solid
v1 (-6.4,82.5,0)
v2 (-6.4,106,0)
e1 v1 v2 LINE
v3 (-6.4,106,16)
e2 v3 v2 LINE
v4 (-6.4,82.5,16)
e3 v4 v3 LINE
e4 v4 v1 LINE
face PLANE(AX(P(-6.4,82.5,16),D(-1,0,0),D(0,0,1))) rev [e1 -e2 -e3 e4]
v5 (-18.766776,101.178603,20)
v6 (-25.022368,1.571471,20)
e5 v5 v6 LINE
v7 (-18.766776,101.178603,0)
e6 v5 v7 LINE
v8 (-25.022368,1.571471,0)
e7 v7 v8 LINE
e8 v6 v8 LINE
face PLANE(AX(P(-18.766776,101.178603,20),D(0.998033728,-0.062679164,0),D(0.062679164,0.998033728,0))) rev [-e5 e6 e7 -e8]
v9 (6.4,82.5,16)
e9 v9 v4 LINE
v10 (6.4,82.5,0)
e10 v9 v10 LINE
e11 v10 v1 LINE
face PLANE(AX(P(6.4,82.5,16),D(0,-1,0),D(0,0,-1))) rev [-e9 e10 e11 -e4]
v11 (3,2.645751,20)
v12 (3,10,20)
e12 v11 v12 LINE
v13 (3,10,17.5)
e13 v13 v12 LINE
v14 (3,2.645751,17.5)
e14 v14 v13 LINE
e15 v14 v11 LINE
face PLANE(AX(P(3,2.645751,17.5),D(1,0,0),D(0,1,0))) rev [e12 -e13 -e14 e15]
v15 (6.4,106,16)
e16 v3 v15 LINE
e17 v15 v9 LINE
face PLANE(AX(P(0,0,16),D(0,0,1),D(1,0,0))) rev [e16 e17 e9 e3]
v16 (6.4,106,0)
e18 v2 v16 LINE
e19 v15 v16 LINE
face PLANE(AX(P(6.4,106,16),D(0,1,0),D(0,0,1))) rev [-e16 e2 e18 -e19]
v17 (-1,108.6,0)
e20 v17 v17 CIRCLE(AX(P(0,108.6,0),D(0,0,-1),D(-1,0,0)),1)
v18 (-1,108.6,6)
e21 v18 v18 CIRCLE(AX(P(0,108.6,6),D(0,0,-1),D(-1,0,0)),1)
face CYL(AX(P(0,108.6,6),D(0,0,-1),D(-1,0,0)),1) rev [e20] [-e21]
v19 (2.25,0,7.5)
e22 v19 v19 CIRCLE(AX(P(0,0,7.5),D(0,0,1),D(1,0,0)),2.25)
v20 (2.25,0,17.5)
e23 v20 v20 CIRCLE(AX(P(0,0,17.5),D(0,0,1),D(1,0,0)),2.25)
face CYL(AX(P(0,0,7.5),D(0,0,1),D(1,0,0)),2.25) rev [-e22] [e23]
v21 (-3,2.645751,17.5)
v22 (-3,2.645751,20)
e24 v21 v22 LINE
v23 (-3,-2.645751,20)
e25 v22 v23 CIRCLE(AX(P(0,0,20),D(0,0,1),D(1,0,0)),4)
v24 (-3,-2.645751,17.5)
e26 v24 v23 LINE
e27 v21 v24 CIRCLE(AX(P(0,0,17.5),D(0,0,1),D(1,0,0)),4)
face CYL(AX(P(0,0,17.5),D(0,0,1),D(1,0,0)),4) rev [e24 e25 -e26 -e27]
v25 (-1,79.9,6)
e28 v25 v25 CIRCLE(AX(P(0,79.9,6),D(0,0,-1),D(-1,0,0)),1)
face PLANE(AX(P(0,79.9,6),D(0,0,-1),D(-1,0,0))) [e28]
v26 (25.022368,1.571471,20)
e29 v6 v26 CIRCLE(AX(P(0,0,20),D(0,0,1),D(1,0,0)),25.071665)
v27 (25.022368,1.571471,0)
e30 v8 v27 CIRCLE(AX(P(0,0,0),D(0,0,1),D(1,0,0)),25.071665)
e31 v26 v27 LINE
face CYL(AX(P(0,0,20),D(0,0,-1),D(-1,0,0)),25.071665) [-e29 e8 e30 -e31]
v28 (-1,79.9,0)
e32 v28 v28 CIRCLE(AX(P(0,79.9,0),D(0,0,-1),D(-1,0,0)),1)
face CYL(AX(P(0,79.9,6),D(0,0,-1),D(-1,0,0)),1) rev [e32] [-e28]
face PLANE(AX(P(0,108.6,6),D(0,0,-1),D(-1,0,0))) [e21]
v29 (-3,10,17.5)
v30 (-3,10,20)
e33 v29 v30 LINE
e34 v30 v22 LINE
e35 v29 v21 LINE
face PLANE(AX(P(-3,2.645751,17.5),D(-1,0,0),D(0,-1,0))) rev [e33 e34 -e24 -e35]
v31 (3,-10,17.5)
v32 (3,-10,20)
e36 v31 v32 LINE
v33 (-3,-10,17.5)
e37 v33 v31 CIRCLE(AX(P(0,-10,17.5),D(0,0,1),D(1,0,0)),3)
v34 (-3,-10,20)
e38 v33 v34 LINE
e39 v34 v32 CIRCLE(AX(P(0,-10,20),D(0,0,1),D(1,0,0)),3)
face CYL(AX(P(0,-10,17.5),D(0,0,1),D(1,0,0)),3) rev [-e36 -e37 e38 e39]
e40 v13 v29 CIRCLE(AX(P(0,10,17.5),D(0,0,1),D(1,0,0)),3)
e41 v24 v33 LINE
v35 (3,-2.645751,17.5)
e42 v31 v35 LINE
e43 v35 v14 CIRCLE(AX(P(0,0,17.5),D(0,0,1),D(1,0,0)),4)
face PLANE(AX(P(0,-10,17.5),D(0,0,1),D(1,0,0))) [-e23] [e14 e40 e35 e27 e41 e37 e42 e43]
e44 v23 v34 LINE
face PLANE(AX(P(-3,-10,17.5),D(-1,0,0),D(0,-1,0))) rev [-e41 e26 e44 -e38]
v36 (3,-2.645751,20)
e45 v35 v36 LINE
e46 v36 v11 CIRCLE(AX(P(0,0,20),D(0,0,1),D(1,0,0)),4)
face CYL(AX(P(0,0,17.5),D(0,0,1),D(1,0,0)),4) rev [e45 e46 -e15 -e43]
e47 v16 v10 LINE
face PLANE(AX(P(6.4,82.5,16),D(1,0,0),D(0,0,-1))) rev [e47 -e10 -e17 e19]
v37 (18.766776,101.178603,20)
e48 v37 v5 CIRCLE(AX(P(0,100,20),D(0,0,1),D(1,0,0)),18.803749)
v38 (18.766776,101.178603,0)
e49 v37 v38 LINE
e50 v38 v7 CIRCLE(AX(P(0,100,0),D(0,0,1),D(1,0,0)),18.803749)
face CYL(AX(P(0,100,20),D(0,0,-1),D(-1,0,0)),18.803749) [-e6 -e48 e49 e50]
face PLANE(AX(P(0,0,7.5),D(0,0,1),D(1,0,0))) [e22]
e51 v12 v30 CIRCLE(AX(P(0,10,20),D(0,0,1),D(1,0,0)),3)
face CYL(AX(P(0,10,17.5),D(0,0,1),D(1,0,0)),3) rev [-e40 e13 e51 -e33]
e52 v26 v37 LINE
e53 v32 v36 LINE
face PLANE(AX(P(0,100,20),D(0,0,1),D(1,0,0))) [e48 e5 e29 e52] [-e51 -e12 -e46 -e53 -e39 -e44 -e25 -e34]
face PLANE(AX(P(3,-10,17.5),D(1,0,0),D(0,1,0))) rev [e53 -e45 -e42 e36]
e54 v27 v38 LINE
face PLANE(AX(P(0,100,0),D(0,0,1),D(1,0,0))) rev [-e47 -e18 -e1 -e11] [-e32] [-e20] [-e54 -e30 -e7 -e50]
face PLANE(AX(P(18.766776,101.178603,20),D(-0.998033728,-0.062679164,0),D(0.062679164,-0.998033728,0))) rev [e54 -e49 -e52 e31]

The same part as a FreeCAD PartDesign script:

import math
import FreeCAD as App
import Part
import Sketcher
from FreeCAD import Vector


def add_polygon(sketch, points):
    """Adds a closed chain of lines whose ends are joined by coincident constraints."""
    first, n = sketch.GeometryCount, len(points)
    for a, b in zip(points, points[1:] + points[:1]):
        sketch.addGeometry(Part.LineSegment(App.Vector(*a, 0), App.Vector(*b, 0)), False)
    for i in range(n):
        sketch.addConstraint(Sketcher.Constraint("Coincident", first + i, 2, first + (i + 1) % n, 1))

doc = App.newDocument("Part")
body = doc.addObject("PartDesign::Body", "Body")

sketch1 = body.newObject("Sketcher::SketchObject", "Sketch")
sketch1.AttachmentSupport = (doc.getObject("XY_Plane"), [""])
sketch1.MapMode = "FlatFace"
sketch1.addGeometry([
    Part.LineSegment(Vector(25, 2, 0), Vector(19, 101, 0)),
    Part.ArcOfCircle(Part.Circle(Vector(0, 100, 0), Vector(0, 0, 1), 19), math.radians(4), math.radians(176)),
    Part.LineSegment(Vector(-19, 101, 0), Vector(-25, 2, 0)),
    Part.ArcOfCircle(Part.Circle(Vector(0, 0, 0), Vector(0, 0, 1), 25), math.radians(176), math.radians(364)),
], False)
sketch1.addConstraint([
    Sketcher.Constraint("Tangent", 0, 2, 1, 1),
    Sketcher.Constraint("Tangent", 1, 2, 2, 1),
    Sketcher.Constraint("Tangent", 2, 2, 3, 1),
    Sketcher.Constraint("Tangent", 3, 2, 0, 1),
    Sketcher.Constraint("Coincident", 3, 3, -1, 1),
    Sketcher.Constraint("PointOnObject", 1, 3, -2),
    Sketcher.Constraint("DistanceY", -1, 1, 1, 3, 100.0),
    Sketcher.Constraint("Radius", 1, 18.803749),
    Sketcher.Constraint("Radius", 3, 25.071665),
])
pad1 = body.newObject("PartDesign::Pad", "Pad")
pad1.Profile = sketch1
pad1.Length = 20

sketch2 = body.newObject("Sketcher::SketchObject", "Sketch001")
sketch2.AttachmentSupport = (doc.getObject("XY_Plane"), [""])
sketch2.MapMode = "FlatFace"
sketch2.AttachmentOffset = App.Placement(Vector(0, 0, 20), App.Rotation())
sketch2.addGeometry([
    Part.LineSegment(Vector(-3, -2.6, 0), Vector(-3, -10, 0)),
    Part.ArcOfCircle(Part.Circle(Vector(0, -10, 0), Vector(0, 0, 1), 3), math.radians(180), math.radians(360)),
    Part.LineSegment(Vector(3, -10, 0), Vector(3, -2.6, 0)),
    Part.ArcOfCircle(Part.Circle(Vector(0, 0, 0), Vector(0, 0, 1), 4), math.radians(-41), math.radians(41)),
    Part.LineSegment(Vector(3, 2.6, 0), Vector(3, 10, 0)),
    Part.ArcOfCircle(Part.Circle(Vector(0, 10, 0), Vector(0, 0, 1), 3), math.radians(0), math.radians(180)),
    Part.LineSegment(Vector(-3, 10, 0), Vector(-3, 2.6, 0)),
    Part.ArcOfCircle(Part.Circle(Vector(0, 0, 0), Vector(0, 0, 1), 4), math.radians(139), math.radians(221)),
], False)
sketch2.addConstraint([
    Sketcher.Constraint("Tangent", 0, 2, 1, 1),
    Sketcher.Constraint("Tangent", 1, 2, 2, 1),
    Sketcher.Constraint("Coincident", 2, 2, 3, 1),
    Sketcher.Constraint("Coincident", 3, 2, 4, 1),
    Sketcher.Constraint("Tangent", 4, 2, 5, 1),
    Sketcher.Constraint("Tangent", 5, 2, 6, 1),
    Sketcher.Constraint("Coincident", 6, 2, 7, 1),
    Sketcher.Constraint("Coincident", 7, 2, 0, 1),
    Sketcher.Constraint("Vertical", 0),
    Sketcher.Constraint("Vertical", 2),
    Sketcher.Constraint("Vertical", 4),
    Sketcher.Constraint("Vertical", 6),
    Sketcher.Constraint("Coincident", 3, 3, -1, 1),
    Sketcher.Constraint("Coincident", 7, 3, -1, 1),
    Sketcher.Constraint("Equal", 1, 5),
    Sketcher.Constraint("Equal", 3, 7),
    Sketcher.Constraint("Symmetric", 1, 3, 5, 3, -1, 1),
    Sketcher.Constraint("PointOnObject", 1, 3, -2),
    Sketcher.Constraint("Radius", 1, 3.0),
    Sketcher.Constraint("Radius", 3, 4.0),
    Sketcher.Constraint("DistanceY", 1, 3, -1, 1, 10.0),
])
pocket1 = body.newObject("PartDesign::Pocket", "Pocket")
pocket1.Profile = sketch2
pocket1.Length = 2.5

sketch3 = body.newObject("Sketcher::SketchObject", "Sketch002")
sketch3.AttachmentSupport = (doc.getObject("XY_Plane"), [""])
sketch3.MapMode = "FlatFace"
sketch3.AttachmentOffset = App.Placement(Vector(0, 0, 17.5), App.Rotation())
sketch3.addGeometry(Part.Circle(Vector(0, 0, 0), Vector(0, 0, 1), 2.2), False)
sketch3.addConstraint([
    Sketcher.Constraint("Coincident", 0, 3, -1, 1),
    Sketcher.Constraint("Diameter", 0, 4.5),
])
pocket2 = body.newObject("PartDesign::Pocket", "Pocket001")
pocket2.Profile = sketch3
pocket2.Length = 10

sketch4 = body.newObject("Sketcher::SketchObject", "Sketch003")
sketch4.AttachmentSupport = (doc.getObject("XY_Plane"), [""])
sketch4.MapMode = "FlatFace"
add_polygon(sketch4, [(6, 106), (6, 82), (-6, 82), (-6, 106)])
sketch4.addConstraint([
    Sketcher.Constraint("Vertical", 0),
    Sketcher.Constraint("Horizontal", 1),
    Sketcher.Constraint("Vertical", 2),
    Sketcher.Constraint("Horizontal", 3),
    Sketcher.Constraint("DistanceX", 1, 2, 1, 1, 12.8),
    Sketcher.Constraint("DistanceY", 0, 2, 0, 1, 23.5),
    Sketcher.Constraint("DistanceY", -1, 1, 2, 2, 106.0),
    Sketcher.Constraint("DistanceX", -1, 1, 0, 2, 6.4),
])
pocket3 = body.newObject("PartDesign::Pocket", "Pocket002")
pocket3.Profile = sketch4
pocket3.Length = 16
pocket3.Reversed = True

sketch5 = body.newObject("Sketcher::SketchObject", "Sketch004")
sketch5.AttachmentSupport = (doc.getObject("XY_Plane"), [""])
sketch5.MapMode = "FlatFace"
sketch5.addGeometry([
    Part.Circle(Vector(0, 108.6, 0), Vector(0, 0, 1), 1),
    Part.Circle(Vector(0, 79.9, 0), Vector(0, 0, 1), 1),
], False)
sketch5.addConstraint([
    Sketcher.Constraint("Equal", 0, 1),
    Sketcher.Constraint("PointOnObject", 0, 3, -2),
    Sketcher.Constraint("PointOnObject", 1, 3, -2),
    Sketcher.Constraint("Diameter", 0, 2.0),
    Sketcher.Constraint("DistanceY", -1, 1, 0, 3, 108.6),
    Sketcher.Constraint("DistanceY", -1, 1, 1, 3, 79.9),
])
pocket4 = body.newObject("PartDesign::Pocket", "Pocket003")
pocket4.Profile = sketch5
pocket4.Length = 6
pocket4.Reversed = True

doc.recompute()
